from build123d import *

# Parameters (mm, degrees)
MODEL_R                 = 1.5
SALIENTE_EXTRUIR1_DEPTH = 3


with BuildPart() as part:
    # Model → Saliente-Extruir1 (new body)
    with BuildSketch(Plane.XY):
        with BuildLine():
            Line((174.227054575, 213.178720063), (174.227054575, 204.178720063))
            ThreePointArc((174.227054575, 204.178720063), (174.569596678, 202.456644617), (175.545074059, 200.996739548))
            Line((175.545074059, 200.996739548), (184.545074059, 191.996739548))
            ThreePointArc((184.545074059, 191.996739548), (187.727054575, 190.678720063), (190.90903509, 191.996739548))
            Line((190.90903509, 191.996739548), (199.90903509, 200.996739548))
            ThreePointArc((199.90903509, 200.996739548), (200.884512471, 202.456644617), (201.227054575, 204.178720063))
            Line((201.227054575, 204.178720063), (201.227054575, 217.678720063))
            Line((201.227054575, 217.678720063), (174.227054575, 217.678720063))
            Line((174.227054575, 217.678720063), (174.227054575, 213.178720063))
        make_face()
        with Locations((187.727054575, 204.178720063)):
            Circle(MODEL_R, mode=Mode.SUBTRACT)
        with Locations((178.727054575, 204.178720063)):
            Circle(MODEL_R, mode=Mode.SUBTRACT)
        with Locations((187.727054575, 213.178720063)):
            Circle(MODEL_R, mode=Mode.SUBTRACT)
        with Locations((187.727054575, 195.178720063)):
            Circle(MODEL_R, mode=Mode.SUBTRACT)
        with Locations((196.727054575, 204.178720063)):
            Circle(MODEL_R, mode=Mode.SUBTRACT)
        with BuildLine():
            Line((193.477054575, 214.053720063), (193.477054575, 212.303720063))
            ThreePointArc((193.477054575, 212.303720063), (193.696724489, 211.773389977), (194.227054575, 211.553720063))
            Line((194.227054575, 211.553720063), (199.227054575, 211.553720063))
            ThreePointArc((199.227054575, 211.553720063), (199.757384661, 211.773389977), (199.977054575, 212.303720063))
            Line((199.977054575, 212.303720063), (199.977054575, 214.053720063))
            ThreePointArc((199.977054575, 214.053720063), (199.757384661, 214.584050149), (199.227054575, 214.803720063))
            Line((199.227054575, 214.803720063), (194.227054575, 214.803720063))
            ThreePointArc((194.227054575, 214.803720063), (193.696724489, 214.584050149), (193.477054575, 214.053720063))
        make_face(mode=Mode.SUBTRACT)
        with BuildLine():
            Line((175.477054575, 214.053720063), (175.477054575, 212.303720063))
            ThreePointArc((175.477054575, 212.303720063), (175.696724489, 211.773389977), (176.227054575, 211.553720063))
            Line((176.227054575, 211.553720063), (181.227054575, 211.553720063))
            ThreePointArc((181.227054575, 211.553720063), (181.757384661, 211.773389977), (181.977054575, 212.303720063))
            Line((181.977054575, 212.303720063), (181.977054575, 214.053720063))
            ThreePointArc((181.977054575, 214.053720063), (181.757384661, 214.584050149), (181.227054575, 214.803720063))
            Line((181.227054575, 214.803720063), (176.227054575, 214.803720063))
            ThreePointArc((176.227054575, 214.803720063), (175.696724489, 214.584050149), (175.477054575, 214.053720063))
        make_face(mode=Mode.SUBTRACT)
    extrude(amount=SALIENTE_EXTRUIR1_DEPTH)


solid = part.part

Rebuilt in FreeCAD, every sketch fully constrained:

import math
import FreeCAD as App
import Part
import Sketcher

V = App.Vector

doc = App.newDocument("Part")
body = doc.addObject("PartDesign::Body", "Body")

sketch1 = doc.addObject("Sketcher::SketchObject", "Sketch")
body.addObject(sketch1)
sketch1.AttachmentSupport = (doc.XY_Plane, [""])
sketch1.MapMode = "FlatFace"
sketch1.addGeometry([
    Part.ArcOfCircle(Part.Circle(V(178.727055, 204.17872, 0), V(0, 0, 1), 4.5), math.radians(180), math.radians(225)),
    Part.LineSegment(V(175.545074, 200.99674, 0), V(184.545074, 191.99674, 0)),
    Part.ArcOfCircle(Part.Circle(V(187.727055, 195.17872, 0), V(0, 0, 1), 4.5), math.radians(-135), math.radians(-45)),
    Part.LineSegment(V(190.909035, 191.99674, 0), V(199.909035, 200.99674, 0)),
    Part.ArcOfCircle(Part.Circle(V(196.727055, 204.17872, 0), V(0, 0, 1), 4.5), math.radians(-45), math.radians(0)),
    Part.LineSegment(V(201.227055, 204.17872, 0), V(201.227055, 217.67872, 0)),
    Part.LineSegment(V(201.227055, 217.67872, 0), V(174.227055, 217.67872, 0)),
    Part.LineSegment(V(174.227055, 217.67872, 0), V(174.227055, 204.17872, 0)),
    Part.Circle(V(187.727055, 195.17872, 0), V(0, 0, 1), 1.5),
    Part.Circle(V(178.727055, 204.17872, 0), V(0, 0, 1), 1.5),
    Part.Circle(V(187.727055, 204.17872, 0), V(0, 0, 1), 1.5),
    Part.Circle(V(196.727055, 204.17872, 0), V(0, 0, 1), 1.5),
    Part.LineSegment(V(175.477055, 212.30372, 0), V(175.477055, 214.05372, 0)),
    Part.ArcOfCircle(Part.Circle(V(176.227055, 214.05372, 0), V(0, 0, 1), 0.75), math.radians(90), math.radians(180)),
    Part.LineSegment(V(176.227055, 214.80372, 0), V(181.227055, 214.80372, 0)),
    Part.ArcOfCircle(Part.Circle(V(181.227055, 214.05372, 0), V(0, 0, 1), 0.75), math.radians(0), math.radians(90)),
    Part.LineSegment(V(181.977055, 214.05372, 0), V(181.977055, 212.30372, 0)),
    Part.ArcOfCircle(Part.Circle(V(181.227055, 212.30372, 0), V(0, 0, 1), 0.75), math.radians(-90), math.radians(0)),
    Part.LineSegment(V(181.227055, 211.55372, 0), V(176.227055, 211.55372, 0)),
    Part.ArcOfCircle(Part.Circle(V(176.227055, 212.30372, 0), V(0, 0, 1), 0.75), math.radians(180), math.radians(270)),
    Part.Circle(V(187.727055, 213.17872, 0), V(0, 0, 1), 1.5),
    Part.LineSegment(V(193.477055, 212.30372, 0), V(193.477055, 214.05372, 0)),
    Part.ArcOfCircle(Part.Circle(V(194.227055, 214.05372, 0), V(0, 0, 1), 0.75), math.radians(90), math.radians(180)),
    Part.LineSegment(V(194.227055, 214.80372, 0), V(199.227055, 214.80372, 0)),
    Part.ArcOfCircle(Part.Circle(V(199.227055, 214.05372, 0), V(0, 0, 1), 0.75), math.radians(0), math.radians(90)),
    Part.LineSegment(V(199.977055, 214.05372, 0), V(199.977055, 212.30372, 0)),
    Part.ArcOfCircle(Part.Circle(V(199.227055, 212.30372, 0), V(0, 0, 1), 0.75), math.radians(-90), math.radians(0)),
    Part.LineSegment(V(199.227055, 211.55372, 0), V(194.227055, 211.55372, 0)),
    Part.ArcOfCircle(Part.Circle(V(194.227055, 212.30372, 0), V(0, 0, 1), 0.75), math.radians(180), math.radians(270)),
], False)
sketch1.addConstraint([
    Sketcher.Constraint("Tangent", 0, 2, 1, 1),
    Sketcher.Constraint("Tangent", 1, 2, 2, 1),
    Sketcher.Constraint("Tangent", 2, 2, 3, 1),
    Sketcher.Constraint("Tangent", 3, 2, 4, 1),
    Sketcher.Constraint("Tangent", 4, 2, 5, 1),
    Sketcher.Constraint("Coincident", 5, 2, 6, 1),
    Sketcher.Constraint("Coincident", 6, 2, 7, 1),
    Sketcher.Constraint("Tangent", 7, 2, 0, 1),
    Sketcher.Constraint("Tangent", 12, 2, 13, 2),
    Sketcher.Constraint("Tangent", 13, 1, 14, 1),
    Sketcher.Constraint("Tangent", 14, 2, 15, 2),
    Sketcher.Constraint("Tangent", 15, 1, 16, 1),
    Sketcher.Constraint("Tangent", 16, 2, 17, 2),
    Sketcher.Constraint("Tangent", 17, 1, 18, 1),
    Sketcher.Constraint("Tangent", 18, 2, 19, 2),
    Sketcher.Constraint("Tangent", 19, 1, 12, 1),
    Sketcher.Constraint("Tangent", 21, 2, 22, 2),
    Sketcher.Constraint("Tangent", 22, 1, 23, 1),
    Sketcher.Constraint("Tangent", 23, 2, 24, 2),
    Sketcher.Constraint("Tangent", 24, 1, 25, 1),
    Sketcher.Constraint("Tangent", 25, 2, 26, 2),
    Sketcher.Constraint("Tangent", 26, 1, 27, 1),
    Sketcher.Constraint("Tangent", 27, 2, 28, 2),
    Sketcher.Constraint("Tangent", 28, 1, 21, 1),
    Sketcher.Constraint("Vertical", 5),
    Sketcher.Constraint("Horizontal", 6),
    Sketcher.Constraint("Vertical", 7),
    Sketcher.Constraint("Vertical", 12),
    Sketcher.Constraint("Horizontal", 14),
    Sketcher.Constraint("Vertical", 16),
    Sketcher.Constraint("Horizontal", 18),
    Sketcher.Constraint("Vertical", 21),
    Sketcher.Constraint("Horizontal", 23),
    Sketcher.Constraint("Vertical", 25),
    Sketcher.Constraint("Horizontal", 27),
    Sketcher.Constraint("Coincident", 8, 3, 2, 3),
    Sketcher.Constraint("Coincident", 9, 3, 0, 3),
    Sketcher.Constraint("Coincident", 11, 3, 4, 3),
    Sketcher.Constraint("Equal", 0, 2),
    Sketcher.Constraint("Equal", 2, 4),
    Sketcher.Constraint("Equal", 8, 9),
    Sketcher.Constraint("Equal", 9, 10),
    Sketcher.Constraint("Equal", 10, 11),
    Sketcher.Constraint("Equal", 13, 15),
    Sketcher.Constraint("Equal", 15, 17),
    Sketcher.Constraint("Equal", 17, 19),
    Sketcher.Constraint("Equal", 11, 20),
    Sketcher.Constraint("Equal", 19, 22),
    Sketcher.Constraint("Equal", 22, 24),
    Sketcher.Constraint("Equal", 24, 26),
    Sketcher.Constraint("Equal", 26, 28),
    Sketcher.Constraint("Perpendicular", 1, 3),
    Sketcher.Constraint("Horizontal", 0, 3, 4, 3),
    Sketcher.Constraint("Horizontal", 9, 3, 10, 3),
    Sketcher.Constraint("Horizontal", 15, 3, 22, 3),
    Sketcher.Constraint("Horizontal", 19, 3, 26, 3),
    Sketcher.Constraint("Horizontal", 1, 2, 2, 2),
    Sketcher.Constraint("Vertical", 8, 3, 10, 3),
    Sketcher.Constraint("Vertical", 10, 3, 20, 3),
    Sketcher.Constraint("Equal", 18, 23),
    Sketcher.Constraint("Diameter", 8, 3.0),
    Sketcher.Constraint("Radius", 0, 4.5),
    Sketcher.Constraint("DistanceX", 6, 2, 6, 1, 27.0),
    Sketcher.Constraint("DistanceX", 14, 1, 14, 2, 5.0),
    Sketcher.Constraint("Radius", 13, 0.75),
    Sketcher.Constraint("DistanceY", 5, 1, 5, 2, 13.5),
    Sketcher.Constraint("DistanceY", 10, 3, 20, 3, 9.0),
    Sketcher.Constraint("DistanceX", 15, 3, 22, 3, 13.0),
    Sketcher.Constraint("DistanceX", 26, 3, 4, 2, 2.0),
    Sketcher.Constraint("DistanceY", 12, 1, 12, 2, 1.75),
    Sketcher.Constraint("DistanceY", 9, 3, 13, 3, 9.875),
    Sketcher.Constraint("DistanceY", -1, 1, 0, 3, 204.17872),
    Sketcher.Constraint("DistanceX", -1, 1, 0, 3, 178.727055),
])
pad1 = doc.addObject("PartDesign::Pad", "Pad")
body.addObject(pad1)
pad1.Profile = sketch1
pad1.Length = 3

doc.recompute()
